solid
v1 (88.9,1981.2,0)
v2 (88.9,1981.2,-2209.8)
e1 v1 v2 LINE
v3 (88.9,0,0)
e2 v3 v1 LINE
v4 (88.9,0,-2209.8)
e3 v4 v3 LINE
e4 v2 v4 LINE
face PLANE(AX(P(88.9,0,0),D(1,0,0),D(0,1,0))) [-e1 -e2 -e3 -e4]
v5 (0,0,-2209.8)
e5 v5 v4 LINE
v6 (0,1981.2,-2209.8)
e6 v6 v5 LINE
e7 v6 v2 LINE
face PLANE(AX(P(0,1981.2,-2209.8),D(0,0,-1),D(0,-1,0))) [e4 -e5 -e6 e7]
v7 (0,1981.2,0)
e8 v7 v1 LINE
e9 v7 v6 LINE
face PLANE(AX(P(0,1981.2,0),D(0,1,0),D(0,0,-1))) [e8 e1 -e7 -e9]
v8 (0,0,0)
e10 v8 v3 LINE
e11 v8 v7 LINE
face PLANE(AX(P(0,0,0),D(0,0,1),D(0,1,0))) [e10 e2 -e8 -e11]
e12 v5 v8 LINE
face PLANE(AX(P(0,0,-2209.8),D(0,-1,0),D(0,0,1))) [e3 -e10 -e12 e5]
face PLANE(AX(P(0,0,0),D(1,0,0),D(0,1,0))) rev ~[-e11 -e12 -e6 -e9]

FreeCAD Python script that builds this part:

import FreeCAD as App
import Part
import Sketcher
from FreeCAD import Vector
Q = App.Units.Quantity


def add_polygon(sketch, points):
    """Adds a closed chain of lines whose ends are joined by coincident constraints."""
    first, n = sketch.GeometryCount, len(points)
    for a, b in zip(points, points[1:] + points[:1]):
        sketch.addGeometry(Part.LineSegment(App.Vector(*a, 0), App.Vector(*b, 0)), False)
    for i in range(n):
        sketch.addConstraint(Sketcher.Constraint("Coincident", first + i, 2, first + (i + 1) % n, 1))

doc = App.newDocument("Part")
body = doc.addObject("PartDesign::Body", "Body")

# Sketch on YZ plane
sketch1 = body.newObject("Sketcher::SketchObject", "Sketch")
sketch1.AttachmentSupport = (doc.getObject("YZ_Plane"), [""])
sketch1.MapMode = "FlatFace"
add_polygon(sketch1, [(1981, 0), (0, 0), (0, -2210), (1981, -2210)])  # lines 0-3
sketch1.addConstraint([
    Sketcher.Constraint("Horizontal", 0),
    Sketcher.Constraint("Vertical", 1),
    Sketcher.Constraint("Horizontal", 2),
    Sketcher.Constraint("Vertical", 3),
    Sketcher.Constraint("Coincident", 0, 2, -1, 1),
    Sketcher.Constraint("DistanceX", 0, 2, 0, 1, Q("78 in")),
    Sketcher.Constraint("DistanceY", 1, 2, 1, 1, Q("87 in")),
])
pad1 = body.newObject("PartDesign::Pad", "Pad")
pad1.Profile = sketch1
pad1.Length = Q("3.5 in")

doc.recompute()
